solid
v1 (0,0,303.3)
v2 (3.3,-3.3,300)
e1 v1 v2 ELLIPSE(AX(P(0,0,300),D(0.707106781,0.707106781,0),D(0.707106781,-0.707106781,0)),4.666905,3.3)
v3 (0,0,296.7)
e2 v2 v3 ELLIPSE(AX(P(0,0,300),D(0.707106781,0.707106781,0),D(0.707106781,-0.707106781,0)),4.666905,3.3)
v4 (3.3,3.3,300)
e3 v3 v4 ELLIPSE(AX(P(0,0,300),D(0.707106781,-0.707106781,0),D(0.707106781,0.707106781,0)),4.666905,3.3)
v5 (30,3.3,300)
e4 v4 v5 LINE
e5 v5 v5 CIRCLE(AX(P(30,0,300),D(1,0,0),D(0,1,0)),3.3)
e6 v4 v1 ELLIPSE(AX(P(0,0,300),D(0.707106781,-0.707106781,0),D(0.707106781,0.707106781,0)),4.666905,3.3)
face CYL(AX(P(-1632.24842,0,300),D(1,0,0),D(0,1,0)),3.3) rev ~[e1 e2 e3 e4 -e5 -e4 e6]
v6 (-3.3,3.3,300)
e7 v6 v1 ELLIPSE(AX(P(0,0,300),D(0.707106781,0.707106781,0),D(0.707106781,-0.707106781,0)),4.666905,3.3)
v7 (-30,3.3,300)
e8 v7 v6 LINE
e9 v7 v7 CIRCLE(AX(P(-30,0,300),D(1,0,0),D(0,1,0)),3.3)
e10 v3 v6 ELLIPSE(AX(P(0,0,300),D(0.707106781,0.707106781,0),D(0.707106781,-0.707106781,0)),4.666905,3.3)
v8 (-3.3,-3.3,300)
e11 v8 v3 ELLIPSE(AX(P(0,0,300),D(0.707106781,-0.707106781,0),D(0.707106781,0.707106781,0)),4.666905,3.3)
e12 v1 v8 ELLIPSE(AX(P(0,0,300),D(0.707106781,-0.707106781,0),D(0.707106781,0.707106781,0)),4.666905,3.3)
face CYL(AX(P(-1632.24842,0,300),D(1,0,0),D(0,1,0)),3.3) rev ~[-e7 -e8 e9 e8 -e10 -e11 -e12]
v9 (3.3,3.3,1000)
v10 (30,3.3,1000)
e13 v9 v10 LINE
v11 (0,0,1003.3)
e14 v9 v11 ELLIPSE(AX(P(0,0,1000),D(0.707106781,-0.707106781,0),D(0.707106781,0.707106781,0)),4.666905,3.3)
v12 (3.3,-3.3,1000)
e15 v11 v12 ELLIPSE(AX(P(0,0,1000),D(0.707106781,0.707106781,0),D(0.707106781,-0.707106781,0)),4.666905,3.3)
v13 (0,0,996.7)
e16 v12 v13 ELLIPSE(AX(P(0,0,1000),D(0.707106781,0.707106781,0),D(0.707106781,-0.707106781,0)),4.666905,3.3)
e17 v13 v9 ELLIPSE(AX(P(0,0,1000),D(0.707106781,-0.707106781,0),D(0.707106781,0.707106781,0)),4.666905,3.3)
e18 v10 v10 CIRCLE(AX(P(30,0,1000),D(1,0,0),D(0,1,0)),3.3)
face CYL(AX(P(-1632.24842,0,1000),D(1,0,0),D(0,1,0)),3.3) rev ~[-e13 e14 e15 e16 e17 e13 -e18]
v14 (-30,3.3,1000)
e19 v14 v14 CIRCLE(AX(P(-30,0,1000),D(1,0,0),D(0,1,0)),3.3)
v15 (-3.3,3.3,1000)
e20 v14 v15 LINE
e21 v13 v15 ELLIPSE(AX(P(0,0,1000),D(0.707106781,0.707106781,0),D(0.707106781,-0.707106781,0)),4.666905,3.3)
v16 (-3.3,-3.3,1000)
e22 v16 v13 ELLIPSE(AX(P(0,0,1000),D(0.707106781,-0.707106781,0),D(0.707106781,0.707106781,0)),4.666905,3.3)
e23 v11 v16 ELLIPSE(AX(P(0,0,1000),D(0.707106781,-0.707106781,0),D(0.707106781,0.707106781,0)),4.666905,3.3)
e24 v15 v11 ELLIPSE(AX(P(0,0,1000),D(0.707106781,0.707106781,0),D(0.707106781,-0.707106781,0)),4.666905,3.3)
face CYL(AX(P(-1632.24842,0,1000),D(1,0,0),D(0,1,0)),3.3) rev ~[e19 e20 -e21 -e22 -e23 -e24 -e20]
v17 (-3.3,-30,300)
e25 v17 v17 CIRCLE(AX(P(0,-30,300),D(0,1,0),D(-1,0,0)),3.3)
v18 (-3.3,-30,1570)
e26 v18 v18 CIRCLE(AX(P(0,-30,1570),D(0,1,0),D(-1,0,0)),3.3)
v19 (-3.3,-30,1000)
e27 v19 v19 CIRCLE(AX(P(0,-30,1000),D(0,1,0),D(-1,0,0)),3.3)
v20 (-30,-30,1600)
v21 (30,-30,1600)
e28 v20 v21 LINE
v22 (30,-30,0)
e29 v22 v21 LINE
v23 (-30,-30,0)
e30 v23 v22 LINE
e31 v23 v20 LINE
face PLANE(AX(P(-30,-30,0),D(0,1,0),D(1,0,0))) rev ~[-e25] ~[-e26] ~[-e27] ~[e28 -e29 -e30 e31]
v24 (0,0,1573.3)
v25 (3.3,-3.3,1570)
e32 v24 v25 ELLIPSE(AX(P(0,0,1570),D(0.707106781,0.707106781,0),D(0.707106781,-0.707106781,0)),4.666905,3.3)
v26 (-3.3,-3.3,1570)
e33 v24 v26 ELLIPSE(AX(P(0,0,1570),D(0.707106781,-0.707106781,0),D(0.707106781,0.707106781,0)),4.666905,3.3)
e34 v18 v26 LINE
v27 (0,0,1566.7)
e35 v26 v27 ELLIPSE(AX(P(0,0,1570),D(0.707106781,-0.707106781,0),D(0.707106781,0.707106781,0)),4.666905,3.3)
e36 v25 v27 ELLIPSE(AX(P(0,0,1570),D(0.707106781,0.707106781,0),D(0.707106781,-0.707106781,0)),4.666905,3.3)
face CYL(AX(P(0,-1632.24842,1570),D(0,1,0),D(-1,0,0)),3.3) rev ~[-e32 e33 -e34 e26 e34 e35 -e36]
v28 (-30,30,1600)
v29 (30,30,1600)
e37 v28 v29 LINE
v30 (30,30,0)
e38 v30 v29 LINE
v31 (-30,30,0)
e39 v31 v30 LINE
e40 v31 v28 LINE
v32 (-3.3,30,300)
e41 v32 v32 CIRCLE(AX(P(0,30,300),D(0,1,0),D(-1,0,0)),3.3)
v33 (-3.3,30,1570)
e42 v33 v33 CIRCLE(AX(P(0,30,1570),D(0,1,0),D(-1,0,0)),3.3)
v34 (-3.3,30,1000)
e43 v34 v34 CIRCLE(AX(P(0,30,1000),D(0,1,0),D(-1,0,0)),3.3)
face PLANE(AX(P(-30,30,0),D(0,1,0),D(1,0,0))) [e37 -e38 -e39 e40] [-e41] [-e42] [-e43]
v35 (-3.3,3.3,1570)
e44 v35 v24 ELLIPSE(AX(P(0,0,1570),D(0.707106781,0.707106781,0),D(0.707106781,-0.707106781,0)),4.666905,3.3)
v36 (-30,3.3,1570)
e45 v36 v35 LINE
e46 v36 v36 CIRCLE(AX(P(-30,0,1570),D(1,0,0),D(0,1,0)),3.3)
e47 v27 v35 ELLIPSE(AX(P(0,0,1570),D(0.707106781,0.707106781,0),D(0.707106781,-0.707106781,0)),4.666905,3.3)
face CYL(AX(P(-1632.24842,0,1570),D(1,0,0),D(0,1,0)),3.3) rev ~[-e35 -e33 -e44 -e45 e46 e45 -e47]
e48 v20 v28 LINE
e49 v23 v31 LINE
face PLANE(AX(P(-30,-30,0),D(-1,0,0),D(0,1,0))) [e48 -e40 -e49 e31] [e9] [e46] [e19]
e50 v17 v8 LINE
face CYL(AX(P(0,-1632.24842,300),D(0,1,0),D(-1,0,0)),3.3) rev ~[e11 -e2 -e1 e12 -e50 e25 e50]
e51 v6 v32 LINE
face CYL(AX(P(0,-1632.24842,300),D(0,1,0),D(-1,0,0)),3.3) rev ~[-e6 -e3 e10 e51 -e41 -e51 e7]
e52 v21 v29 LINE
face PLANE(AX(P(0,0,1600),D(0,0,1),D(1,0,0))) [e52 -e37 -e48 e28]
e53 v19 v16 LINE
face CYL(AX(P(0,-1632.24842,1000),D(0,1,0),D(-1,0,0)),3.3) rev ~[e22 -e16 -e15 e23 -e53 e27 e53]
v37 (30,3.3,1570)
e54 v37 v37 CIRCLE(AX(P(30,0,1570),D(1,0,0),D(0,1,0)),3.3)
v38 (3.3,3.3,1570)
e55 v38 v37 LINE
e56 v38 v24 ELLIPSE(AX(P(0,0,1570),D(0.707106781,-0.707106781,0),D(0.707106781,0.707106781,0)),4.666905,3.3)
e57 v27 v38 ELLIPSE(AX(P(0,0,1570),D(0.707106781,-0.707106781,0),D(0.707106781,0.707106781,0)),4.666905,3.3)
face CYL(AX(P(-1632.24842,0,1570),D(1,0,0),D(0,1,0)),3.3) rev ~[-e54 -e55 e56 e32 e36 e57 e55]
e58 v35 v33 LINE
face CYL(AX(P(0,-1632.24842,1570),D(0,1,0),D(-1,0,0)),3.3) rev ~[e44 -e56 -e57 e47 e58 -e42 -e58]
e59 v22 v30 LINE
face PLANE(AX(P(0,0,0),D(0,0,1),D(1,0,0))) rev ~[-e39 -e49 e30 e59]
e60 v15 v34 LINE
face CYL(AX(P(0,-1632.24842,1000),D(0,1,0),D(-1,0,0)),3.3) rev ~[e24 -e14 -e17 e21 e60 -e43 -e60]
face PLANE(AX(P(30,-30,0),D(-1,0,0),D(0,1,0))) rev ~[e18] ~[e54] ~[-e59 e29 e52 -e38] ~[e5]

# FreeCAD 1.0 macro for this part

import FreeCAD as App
import Part
import Sketcher
from FreeCAD import Vector
Q = App.Units.Quantity


def add_polygon(sketch, points):
    """Adds a closed chain of lines whose ends are joined by coincident constraints."""
    first, n = sketch.GeometryCount, len(points)
    for a, b in zip(points, points[1:] + points[:1]):
        sketch.addGeometry(Part.LineSegment(App.Vector(*a, 0), App.Vector(*b, 0)), False)
    for i in range(n):
        sketch.addConstraint(Sketcher.Constraint("Coincident", first + i, 2, first + (i + 1) % n, 1))

doc = App.newDocument("Part")
body = doc.addObject("PartDesign::Body", "Body")

# Sketch on XY plane
sketch1 = body.newObject("Sketcher::SketchObject", "Sketch")
sketch1.AttachmentSupport = (doc.getObject("XY_Plane"), [""])
sketch1.MapMode = "FlatFace"
add_polygon(sketch1, [(-30, 30), (-30, -30), (30, -30), (30, 30)])  # lines 0-3
sketch1.addConstraint(Sketcher.Constraint("Vertical", 0))
sketch1.addConstraint(Sketcher.Constraint("Horizontal", 1))
sketch1.addConstraint(Sketcher.Constraint("Vertical", 2))
sketch1.addConstraint(Sketcher.Constraint("Horizontal", 3))
sketch1.addConstraint(Sketcher.Constraint("Symmetric", 0, 2, 2, 2, -1, 1))
sketch1.addConstraint(Sketcher.Constraint("Equal", 3, 0))
sketch1.addConstraint(Sketcher.Constraint("DistanceX", 1, 1, 1, 2, Q("60 mm")))
pad1 = body.newObject("PartDesign::Pad", "Pad")
pad1.Profile = sketch1
pad1.Length = 1600

# Sketch on YZ plane
sketch2 = body.newObject("Sketcher::SketchObject", "Sketch001")
sketch2.AttachmentSupport = (doc.getObject("YZ_Plane"), [""])
sketch2.MapMode = "FlatFace"
sketch2.AttachmentOffset = App.Placement(Vector(0, 0, -30), App.Rotation())
sketch2.addGeometry(Part.Circle(Vector(0, 1570, 0), Vector(0, 0, 1), 3.3), False)
sketch2.addGeometry(Part.Circle(Vector(0, 300, 0), Vector(0, 0, 1), 3.3), False)
sketch2.addGeometry(Part.Circle(Vector(0, 1000, 0), Vector(0, 0, 1), 3.3), False)
sketch2.addConstraint(Sketcher.Constraint("Equal", 0, 1))
sketch2.addConstraint(Sketcher.Constraint("Equal", 1, 2))
sketch2.addConstraint(Sketcher.Constraint("PointOnObject", 0, 3, -2))
sketch2.addConstraint(Sketcher.Constraint("PointOnObject", 1, 3, -2))
sketch2.addConstraint(Sketcher.Constraint("PointOnObject", 2, 3, -2))
sketch2.addConstraint(Sketcher.Constraint("Diameter", 0, Q("6.6 mm")))
sketch2.addConstraint(Sketcher.Constraint("DistanceY", -1, 1, 0, 3, Q("1570 mm")))
sketch2.addConstraint(Sketcher.Constraint("DistanceY", -1, 1, 1, 3, Q("300 mm")))
sketch2.addConstraint(Sketcher.Constraint("DistanceY", -1, 1, 2, 3, Q("1000 mm")))
doc.recompute()
hole = body.newObject("PartDesign::Hole", "Hole")
hole.Profile = sketch2
hole.ThreadType = "None"
hole.Diameter = 6.6
hole.DepthType = "ThroughAll"
hole.Reversed = True

# Sketch on XZ plane
sketch3 = body.newObject("Sketcher::SketchObject", "Sketch002")
sketch3.AttachmentSupport = (doc.getObject("XZ_Plane"), [""])
sketch3.MapMode = "FlatFace"
sketch3.AttachmentOffset = App.Placement(Vector(0, 0, 30), App.Rotation())
sketch3.addGeometry(Part.Circle(Vector(0, 1570, 0), Vector(0, 0, 1), 3.3), False)
sketch3.addGeometry(Part.Circle(Vector(0, 300, 0), Vector(0, 0, 1), 3.3), False)
sketch3.addGeometry(Part.Circle(Vector(0, 1000, 0), Vector(0, 0, 1), 3.3), False)
sketch3.addConstraint(Sketcher.Constraint("Equal", 0, 1))
sketch3.addConstraint(Sketcher.Constraint("Equal", 1, 2))
sketch3.addConstraint(Sketcher.Constraint("PointOnObject", 0, 3, -2))
sketch3.addConstraint(Sketcher.Constraint("PointOnObject", 1, 3, -2))
sketch3.addConstraint(Sketcher.Constraint("PointOnObject", 2, 3, -2))
sketch3.addConstraint(Sketcher.Constraint("Diameter", 0, Q("6.6 mm")))
sketch3.addConstraint(Sketcher.Constraint("DistanceY", -1, 1, 0, 3, Q("1570 mm")))
sketch3.addConstraint(Sketcher.Constraint("DistanceY", -1, 1, 1, 3, Q("300 mm")))
sketch3.addConstraint(Sketcher.Constraint("DistanceY", -1, 1, 2, 3, Q("1000 mm")))
doc.recompute()
hole2 = body.newObject("PartDesign::Hole", "Hole001")
hole2.Profile = sketch3
hole2.ThreadType = "None"
hole2.Diameter = 6.6
hole2.DepthType = "ThroughAll"

doc.recompute()
